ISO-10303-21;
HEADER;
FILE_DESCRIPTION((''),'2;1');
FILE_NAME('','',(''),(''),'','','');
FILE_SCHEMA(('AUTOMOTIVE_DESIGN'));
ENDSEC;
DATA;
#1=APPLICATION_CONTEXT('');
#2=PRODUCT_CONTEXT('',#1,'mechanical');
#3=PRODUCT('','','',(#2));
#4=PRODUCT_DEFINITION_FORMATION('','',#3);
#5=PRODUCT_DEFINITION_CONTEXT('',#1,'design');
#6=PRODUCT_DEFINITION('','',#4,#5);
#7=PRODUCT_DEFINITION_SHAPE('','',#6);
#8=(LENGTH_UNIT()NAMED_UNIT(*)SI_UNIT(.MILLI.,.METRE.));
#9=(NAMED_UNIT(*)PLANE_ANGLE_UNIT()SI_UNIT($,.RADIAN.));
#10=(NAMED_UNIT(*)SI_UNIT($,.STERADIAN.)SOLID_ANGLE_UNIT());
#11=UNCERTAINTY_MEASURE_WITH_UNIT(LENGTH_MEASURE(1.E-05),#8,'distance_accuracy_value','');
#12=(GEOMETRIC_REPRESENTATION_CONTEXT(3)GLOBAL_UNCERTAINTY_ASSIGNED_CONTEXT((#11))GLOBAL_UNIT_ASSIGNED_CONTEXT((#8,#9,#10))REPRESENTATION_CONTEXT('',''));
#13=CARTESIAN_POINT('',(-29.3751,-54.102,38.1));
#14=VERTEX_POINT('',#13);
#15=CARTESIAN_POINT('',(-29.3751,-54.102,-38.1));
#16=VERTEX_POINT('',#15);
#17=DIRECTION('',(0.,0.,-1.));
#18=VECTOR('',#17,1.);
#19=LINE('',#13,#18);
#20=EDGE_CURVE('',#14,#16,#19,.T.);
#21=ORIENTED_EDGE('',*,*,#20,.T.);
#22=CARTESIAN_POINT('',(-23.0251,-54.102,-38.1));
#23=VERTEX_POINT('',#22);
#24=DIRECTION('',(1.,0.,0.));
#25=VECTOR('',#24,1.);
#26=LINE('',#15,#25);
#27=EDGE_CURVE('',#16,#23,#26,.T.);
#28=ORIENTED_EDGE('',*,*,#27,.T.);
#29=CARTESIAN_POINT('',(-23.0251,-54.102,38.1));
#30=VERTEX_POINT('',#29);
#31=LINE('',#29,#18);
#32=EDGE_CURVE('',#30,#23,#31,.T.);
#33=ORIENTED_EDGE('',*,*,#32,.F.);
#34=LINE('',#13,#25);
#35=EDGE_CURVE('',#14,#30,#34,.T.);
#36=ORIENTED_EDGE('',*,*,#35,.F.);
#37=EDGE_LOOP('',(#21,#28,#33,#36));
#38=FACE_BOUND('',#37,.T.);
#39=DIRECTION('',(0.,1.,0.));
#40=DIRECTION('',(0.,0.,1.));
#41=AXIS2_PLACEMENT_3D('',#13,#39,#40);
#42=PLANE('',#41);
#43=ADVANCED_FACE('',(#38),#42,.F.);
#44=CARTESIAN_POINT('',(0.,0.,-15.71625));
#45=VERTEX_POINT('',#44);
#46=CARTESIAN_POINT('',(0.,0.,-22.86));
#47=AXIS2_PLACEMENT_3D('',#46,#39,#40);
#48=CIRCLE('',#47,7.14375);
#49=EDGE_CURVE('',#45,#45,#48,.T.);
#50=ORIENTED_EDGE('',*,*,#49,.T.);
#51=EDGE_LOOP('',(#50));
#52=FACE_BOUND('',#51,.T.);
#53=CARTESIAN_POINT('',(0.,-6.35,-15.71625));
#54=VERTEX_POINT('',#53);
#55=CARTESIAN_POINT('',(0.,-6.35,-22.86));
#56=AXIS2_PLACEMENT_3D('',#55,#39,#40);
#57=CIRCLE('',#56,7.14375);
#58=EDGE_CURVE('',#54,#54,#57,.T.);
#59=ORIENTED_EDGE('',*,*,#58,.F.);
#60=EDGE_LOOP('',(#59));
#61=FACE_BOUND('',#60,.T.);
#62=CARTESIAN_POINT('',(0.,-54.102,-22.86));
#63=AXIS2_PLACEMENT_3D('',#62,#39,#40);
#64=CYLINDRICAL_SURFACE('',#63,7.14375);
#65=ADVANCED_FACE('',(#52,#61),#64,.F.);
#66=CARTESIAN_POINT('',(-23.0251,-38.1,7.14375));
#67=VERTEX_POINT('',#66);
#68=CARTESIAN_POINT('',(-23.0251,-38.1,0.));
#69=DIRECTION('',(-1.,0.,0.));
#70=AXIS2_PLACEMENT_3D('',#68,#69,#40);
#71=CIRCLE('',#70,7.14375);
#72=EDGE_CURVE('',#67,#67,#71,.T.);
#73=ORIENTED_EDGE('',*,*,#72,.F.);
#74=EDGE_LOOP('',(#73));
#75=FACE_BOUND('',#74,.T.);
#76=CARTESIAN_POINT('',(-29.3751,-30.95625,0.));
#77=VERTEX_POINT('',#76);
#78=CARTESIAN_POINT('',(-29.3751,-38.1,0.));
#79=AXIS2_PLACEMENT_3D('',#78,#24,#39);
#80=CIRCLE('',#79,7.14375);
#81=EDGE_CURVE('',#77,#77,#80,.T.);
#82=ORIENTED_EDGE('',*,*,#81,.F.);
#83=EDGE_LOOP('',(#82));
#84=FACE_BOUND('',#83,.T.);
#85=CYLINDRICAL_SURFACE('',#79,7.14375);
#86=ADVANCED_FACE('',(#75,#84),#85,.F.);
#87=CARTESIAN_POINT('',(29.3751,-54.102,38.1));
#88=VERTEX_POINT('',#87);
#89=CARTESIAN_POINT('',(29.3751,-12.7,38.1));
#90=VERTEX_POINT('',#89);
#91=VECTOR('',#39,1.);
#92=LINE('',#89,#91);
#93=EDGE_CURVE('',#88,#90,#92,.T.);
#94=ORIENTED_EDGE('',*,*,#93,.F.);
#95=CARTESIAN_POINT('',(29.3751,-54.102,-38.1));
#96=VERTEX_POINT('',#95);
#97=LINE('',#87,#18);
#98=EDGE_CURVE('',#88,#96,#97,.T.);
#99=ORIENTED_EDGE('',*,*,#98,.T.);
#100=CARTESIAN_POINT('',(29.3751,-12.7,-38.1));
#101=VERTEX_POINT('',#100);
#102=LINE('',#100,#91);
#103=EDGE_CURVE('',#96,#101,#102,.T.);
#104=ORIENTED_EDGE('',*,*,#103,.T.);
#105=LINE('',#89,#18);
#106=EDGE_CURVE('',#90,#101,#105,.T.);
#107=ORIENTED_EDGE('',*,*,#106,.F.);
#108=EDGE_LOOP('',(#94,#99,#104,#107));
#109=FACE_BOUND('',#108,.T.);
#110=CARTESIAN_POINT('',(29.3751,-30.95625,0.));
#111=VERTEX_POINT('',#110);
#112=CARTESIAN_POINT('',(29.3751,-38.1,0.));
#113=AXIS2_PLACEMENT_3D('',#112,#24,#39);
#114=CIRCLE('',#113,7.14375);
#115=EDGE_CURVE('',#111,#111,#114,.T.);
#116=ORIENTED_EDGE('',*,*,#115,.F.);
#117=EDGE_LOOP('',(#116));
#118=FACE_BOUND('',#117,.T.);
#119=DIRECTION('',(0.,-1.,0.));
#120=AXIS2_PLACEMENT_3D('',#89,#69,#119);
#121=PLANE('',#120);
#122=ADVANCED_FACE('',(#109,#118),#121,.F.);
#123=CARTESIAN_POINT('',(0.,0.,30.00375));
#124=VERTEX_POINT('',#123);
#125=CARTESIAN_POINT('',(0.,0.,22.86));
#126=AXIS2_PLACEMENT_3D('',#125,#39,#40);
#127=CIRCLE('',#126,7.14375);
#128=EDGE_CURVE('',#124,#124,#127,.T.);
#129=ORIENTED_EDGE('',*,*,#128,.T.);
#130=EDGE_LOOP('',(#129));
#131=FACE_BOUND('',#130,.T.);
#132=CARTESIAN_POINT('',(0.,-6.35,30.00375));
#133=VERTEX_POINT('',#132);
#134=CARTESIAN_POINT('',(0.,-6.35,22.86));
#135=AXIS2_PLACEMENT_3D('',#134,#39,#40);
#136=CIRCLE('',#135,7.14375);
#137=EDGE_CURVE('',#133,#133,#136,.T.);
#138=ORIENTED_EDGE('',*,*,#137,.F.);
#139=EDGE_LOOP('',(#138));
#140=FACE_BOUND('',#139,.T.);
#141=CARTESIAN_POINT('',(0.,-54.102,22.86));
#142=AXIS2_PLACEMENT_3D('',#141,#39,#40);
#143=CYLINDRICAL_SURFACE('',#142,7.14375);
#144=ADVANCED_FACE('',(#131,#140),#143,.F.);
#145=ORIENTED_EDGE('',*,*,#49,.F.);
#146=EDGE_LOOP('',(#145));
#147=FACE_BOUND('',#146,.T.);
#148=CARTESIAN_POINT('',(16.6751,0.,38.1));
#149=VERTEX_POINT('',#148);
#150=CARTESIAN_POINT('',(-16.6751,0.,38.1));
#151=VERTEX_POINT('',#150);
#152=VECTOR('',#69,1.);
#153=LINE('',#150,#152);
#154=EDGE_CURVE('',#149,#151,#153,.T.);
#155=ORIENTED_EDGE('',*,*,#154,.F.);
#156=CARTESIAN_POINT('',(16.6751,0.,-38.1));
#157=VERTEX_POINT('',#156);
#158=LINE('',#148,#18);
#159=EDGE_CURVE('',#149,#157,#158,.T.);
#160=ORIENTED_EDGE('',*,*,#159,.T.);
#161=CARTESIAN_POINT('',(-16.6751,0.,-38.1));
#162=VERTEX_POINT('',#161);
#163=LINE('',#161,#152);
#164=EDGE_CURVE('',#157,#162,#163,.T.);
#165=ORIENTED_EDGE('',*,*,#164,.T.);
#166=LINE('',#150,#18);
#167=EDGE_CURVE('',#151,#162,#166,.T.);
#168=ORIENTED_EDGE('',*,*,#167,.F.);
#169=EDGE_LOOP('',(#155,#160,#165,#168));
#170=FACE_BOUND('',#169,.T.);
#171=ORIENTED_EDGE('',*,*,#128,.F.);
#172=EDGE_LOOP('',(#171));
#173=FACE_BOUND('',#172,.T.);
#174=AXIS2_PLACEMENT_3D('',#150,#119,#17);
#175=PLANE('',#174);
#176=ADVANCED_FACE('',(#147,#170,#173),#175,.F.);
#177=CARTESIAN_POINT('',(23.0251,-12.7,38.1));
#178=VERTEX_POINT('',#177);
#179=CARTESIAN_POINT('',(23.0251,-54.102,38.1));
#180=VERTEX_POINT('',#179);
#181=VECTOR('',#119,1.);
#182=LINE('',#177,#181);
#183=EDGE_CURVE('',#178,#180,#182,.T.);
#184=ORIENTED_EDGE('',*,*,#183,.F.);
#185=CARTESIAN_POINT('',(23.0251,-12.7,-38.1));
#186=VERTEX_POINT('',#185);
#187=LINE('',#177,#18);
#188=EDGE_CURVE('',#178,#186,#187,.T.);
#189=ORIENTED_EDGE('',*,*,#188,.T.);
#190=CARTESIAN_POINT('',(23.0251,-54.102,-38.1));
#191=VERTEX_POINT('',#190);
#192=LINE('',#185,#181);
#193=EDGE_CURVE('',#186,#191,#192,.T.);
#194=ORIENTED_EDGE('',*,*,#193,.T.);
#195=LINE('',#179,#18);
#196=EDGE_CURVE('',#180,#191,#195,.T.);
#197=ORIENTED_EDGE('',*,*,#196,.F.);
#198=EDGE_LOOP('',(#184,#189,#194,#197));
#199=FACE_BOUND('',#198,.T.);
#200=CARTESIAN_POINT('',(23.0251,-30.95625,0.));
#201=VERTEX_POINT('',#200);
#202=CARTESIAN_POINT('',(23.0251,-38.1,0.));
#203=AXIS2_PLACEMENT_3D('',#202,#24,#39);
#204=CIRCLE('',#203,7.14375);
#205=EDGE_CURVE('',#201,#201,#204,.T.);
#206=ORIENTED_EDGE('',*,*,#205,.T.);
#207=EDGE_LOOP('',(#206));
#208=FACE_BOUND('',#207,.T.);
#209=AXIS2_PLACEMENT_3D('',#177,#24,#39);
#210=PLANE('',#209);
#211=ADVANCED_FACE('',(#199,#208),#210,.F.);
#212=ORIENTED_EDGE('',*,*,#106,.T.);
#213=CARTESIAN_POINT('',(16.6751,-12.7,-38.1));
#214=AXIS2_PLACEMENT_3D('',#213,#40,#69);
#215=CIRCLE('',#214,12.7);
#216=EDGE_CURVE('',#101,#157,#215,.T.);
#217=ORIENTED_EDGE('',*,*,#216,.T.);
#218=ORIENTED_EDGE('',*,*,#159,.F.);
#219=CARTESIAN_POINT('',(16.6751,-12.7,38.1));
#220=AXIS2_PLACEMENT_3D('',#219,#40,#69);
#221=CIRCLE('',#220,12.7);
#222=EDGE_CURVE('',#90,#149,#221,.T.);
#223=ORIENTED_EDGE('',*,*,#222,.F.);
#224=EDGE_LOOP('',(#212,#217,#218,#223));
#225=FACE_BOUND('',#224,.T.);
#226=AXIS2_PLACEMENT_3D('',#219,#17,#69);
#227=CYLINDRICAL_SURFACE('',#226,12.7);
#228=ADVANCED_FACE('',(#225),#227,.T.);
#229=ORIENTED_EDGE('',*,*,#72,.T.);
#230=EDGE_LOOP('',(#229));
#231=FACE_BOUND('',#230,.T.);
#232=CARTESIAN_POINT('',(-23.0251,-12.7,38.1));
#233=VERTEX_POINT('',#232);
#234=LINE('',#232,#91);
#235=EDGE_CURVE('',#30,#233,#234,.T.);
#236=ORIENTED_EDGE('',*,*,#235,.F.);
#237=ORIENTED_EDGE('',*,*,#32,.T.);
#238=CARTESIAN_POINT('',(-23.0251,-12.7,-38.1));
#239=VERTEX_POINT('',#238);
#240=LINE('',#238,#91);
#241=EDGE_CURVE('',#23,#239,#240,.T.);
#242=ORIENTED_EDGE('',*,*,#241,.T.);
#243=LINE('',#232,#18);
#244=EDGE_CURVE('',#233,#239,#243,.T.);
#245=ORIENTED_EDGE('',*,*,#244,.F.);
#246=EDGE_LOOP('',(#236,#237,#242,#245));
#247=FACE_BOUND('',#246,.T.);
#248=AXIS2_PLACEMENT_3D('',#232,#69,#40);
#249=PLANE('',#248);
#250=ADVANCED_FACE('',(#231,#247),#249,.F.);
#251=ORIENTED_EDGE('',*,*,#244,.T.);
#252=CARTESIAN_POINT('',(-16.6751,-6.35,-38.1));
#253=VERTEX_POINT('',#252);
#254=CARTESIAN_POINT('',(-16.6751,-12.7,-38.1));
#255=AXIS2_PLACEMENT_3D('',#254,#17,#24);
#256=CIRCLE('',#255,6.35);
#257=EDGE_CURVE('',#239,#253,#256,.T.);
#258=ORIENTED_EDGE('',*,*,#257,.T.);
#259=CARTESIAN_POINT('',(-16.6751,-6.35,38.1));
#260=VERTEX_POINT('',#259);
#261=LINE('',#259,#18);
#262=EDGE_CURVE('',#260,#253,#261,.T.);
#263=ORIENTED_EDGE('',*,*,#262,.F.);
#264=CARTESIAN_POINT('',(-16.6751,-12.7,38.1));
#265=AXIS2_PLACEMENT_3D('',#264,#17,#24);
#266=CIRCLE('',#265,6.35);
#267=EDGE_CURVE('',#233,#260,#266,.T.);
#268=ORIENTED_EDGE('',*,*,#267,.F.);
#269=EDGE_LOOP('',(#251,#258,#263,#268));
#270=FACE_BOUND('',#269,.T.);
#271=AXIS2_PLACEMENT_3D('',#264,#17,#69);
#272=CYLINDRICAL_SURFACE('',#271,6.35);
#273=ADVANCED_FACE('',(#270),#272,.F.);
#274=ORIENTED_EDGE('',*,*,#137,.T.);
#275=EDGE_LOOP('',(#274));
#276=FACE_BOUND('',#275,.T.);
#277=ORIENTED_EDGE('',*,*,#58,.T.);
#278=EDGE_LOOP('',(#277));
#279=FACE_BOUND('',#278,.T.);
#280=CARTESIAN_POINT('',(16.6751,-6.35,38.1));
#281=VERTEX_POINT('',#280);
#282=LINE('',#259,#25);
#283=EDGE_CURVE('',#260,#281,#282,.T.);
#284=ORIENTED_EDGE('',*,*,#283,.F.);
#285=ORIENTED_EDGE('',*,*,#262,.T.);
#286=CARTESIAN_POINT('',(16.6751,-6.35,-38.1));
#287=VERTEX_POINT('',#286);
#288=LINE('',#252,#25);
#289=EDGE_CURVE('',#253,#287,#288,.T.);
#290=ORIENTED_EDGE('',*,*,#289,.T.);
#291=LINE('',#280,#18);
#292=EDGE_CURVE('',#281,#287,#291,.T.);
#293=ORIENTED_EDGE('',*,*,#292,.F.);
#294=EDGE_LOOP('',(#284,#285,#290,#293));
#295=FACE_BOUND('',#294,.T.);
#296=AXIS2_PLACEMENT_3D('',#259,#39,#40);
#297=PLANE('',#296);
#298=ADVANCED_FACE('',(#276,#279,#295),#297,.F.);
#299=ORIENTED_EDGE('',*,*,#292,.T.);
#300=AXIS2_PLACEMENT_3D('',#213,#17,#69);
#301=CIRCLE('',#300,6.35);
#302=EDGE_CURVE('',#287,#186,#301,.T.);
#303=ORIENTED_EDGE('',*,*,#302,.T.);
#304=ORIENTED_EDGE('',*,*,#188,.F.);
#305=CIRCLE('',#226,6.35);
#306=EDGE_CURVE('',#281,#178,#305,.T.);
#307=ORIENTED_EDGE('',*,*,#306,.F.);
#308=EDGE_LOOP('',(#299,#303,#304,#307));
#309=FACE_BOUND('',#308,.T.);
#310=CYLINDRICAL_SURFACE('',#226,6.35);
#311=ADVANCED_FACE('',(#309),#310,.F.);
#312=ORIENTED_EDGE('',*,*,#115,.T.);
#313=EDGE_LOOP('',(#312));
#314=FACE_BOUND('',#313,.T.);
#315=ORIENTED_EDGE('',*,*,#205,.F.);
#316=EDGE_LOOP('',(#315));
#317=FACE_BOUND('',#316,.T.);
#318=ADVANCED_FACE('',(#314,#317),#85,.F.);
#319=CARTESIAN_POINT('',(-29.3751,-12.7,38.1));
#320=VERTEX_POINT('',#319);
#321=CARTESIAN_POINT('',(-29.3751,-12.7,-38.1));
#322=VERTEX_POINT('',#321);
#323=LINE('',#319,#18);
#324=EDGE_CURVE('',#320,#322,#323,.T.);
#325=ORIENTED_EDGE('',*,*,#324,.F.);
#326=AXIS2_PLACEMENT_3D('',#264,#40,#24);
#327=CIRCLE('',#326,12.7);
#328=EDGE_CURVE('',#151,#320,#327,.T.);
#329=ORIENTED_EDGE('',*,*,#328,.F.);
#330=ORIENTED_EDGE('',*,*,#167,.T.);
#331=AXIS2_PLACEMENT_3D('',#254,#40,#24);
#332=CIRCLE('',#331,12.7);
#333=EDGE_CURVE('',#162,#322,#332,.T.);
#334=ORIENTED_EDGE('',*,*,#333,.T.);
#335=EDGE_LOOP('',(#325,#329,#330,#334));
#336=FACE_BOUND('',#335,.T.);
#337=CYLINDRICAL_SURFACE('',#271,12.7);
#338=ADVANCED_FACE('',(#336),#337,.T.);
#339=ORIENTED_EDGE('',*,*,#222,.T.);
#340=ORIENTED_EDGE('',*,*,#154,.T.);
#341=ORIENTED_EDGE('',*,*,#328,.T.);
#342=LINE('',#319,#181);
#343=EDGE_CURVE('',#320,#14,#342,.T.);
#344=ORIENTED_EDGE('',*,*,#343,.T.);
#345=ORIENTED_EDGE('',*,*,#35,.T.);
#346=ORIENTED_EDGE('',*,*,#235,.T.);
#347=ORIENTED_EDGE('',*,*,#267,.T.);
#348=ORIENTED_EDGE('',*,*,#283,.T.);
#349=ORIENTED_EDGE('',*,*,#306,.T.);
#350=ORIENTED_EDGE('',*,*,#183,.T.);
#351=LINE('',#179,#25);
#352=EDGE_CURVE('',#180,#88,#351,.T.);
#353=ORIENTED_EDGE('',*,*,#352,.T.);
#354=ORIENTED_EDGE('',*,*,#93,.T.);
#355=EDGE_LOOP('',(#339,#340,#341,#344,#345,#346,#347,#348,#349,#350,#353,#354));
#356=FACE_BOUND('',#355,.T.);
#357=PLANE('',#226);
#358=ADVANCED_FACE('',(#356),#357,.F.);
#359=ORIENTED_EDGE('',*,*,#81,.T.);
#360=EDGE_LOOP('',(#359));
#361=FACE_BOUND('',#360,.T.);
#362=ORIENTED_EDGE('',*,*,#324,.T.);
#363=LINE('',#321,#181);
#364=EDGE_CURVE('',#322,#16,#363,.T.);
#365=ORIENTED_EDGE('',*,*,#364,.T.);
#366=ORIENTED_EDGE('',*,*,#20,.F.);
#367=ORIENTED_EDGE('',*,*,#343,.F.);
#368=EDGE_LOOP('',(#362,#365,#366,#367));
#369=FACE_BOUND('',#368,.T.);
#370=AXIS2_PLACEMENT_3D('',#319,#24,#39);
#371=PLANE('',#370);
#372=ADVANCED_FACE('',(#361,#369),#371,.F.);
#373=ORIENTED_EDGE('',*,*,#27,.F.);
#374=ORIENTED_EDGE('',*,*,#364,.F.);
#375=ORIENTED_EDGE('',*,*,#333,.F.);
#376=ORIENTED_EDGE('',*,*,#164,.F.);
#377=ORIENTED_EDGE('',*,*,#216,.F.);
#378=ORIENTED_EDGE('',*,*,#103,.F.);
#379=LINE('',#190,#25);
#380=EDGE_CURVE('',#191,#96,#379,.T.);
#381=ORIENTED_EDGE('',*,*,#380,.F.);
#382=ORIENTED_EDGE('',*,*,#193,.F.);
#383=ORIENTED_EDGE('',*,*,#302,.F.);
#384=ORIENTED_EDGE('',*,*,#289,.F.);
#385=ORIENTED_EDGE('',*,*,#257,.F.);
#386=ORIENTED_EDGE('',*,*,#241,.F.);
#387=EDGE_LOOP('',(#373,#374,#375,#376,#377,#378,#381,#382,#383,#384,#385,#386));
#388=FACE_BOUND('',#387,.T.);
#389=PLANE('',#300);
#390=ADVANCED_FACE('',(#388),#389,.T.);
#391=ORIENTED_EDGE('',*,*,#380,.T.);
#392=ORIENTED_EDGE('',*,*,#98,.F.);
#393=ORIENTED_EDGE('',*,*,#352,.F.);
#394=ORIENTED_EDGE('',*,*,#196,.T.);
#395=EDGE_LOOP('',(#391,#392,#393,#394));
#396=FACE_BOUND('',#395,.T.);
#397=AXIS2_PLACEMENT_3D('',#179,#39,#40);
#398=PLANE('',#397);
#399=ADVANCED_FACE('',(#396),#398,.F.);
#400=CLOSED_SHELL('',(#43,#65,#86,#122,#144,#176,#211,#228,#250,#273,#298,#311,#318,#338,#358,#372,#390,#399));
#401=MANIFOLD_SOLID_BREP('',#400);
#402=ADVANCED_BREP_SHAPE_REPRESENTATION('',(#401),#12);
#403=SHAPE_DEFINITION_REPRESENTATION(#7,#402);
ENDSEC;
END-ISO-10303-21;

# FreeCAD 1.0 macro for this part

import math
import FreeCAD as App
import Part
import Sketcher

V = App.Vector
Q = App.Units.Quantity

doc = App.newDocument("Part")
body = doc.addObject("PartDesign::Body", "Body")

# Sketch on XY plane
sketch1 = body.newObject("Sketcher::SketchObject", "Sketch")
sketch1.AttachmentSupport = (doc.getObject("XY_Plane"), [""])
sketch1.MapMode = "FlatFace"
sketch1.addGeometry([
    Part.LineSegment(V(-23.0251, -54.102, 0), V(-23.0251, -12.7, 0)),  # 0
    Part.ArcOfCircle(Part.Circle(V(-16.6751, -12.7, 0), V(0, 0, 1), 6.35), math.radians(90), math.radians(180)),  # 1
    Part.LineSegment(V(-16.6751, -6.35, 0), V(16.6751, -6.35, 0)),  # 2
    Part.ArcOfCircle(Part.Circle(V(16.6751, -12.7, 0), V(0, 0, 1), 6.35), math.radians(0), math.radians(90)),  # 3
    Part.LineSegment(V(23.0251, -12.7, 0), V(23.0251, -54.102, 0)),  # 4
    Part.LineSegment(V(23.0251, -54.102, 0), V(29.3751, -54.102, 0)),  # 5
    Part.LineSegment(V(29.3751, -54.102, 0), V(29.3751, -12.7, 0)),  # 6
    Part.ArcOfCircle(Part.Circle(V(16.6751, -12.7, 0), V(0, 0, 1), 12.7), math.radians(0), math.radians(90)),  # 7
    Part.LineSegment(V(16.6751, 0, 0), V(-16.6751, 0, 0)),  # 8
    Part.ArcOfCircle(Part.Circle(V(-16.6751, -12.7, 0), V(0, 0, 1), 12.7), math.radians(90), math.radians(180)),  # 9
    Part.LineSegment(V(-29.3751, -12.7, 0), V(-29.3751, -54.102, 0)),  # 10
    Part.LineSegment(V(-29.3751, -54.102, 0), V(-23.0251, -54.102, 0)),  # 11
], False)
sketch1.addConstraint([
    Sketcher.Constraint("Tangent", 0, 2, 1, 2),
    Sketcher.Constraint("Tangent", 1, 1, 2, 1),
    Sketcher.Constraint("Tangent", 2, 2, 3, 2),
    Sketcher.Constraint("Tangent", 3, 1, 4, 1),
    Sketcher.Constraint("Coincident", 4, 2, 5, 1),
    Sketcher.Constraint("Coincident", 5, 2, 6, 1),
    Sketcher.Constraint("Tangent", 6, 2, 7, 1),
    Sketcher.Constraint("Tangent", 7, 2, 8, 1),
    Sketcher.Constraint("Tangent", 8, 2, 9, 1),
    Sketcher.Constraint("Tangent", 9, 2, 10, 1),
    Sketcher.Constraint("Coincident", 10, 2, 11, 1),
    Sketcher.Constraint("Coincident", 11, 2, 0, 1),
    Sketcher.Constraint("Vertical", 0),
    Sketcher.Constraint("Horizontal", 2),
    Sketcher.Constraint("Vertical", 4),
    Sketcher.Constraint("Horizontal", 5),
    Sketcher.Constraint("Vertical", 6),
    Sketcher.Constraint("Horizontal", 8),
    Sketcher.Constraint("Vertical", 10),
    Sketcher.Constraint("Horizontal", 11),
    Sketcher.Constraint("Coincident", 7, 3, 3, 3),
    Sketcher.Constraint("Coincident", 9, 3, 1, 3),
    Sketcher.Constraint("Equal", 1, 3),
    Sketcher.Constraint("Symmetric", 7, 2, 8, 2, -1, 1),
    Sketcher.Constraint("Horizontal", 5, 2, 10, 2),
    Sketcher.Constraint("Radius", 7, Q("0.5 in")),
    Sketcher.Constraint("Radius", 1, Q("0.25 in")),
    Sketcher.Constraint("DistanceY", 0, 1, 0, 2, Q("1.63 in")),
    Sketcher.Constraint("DistanceX", 2, 1, 2, 2, Q("1.313 in")),
])
pad1 = body.newObject("PartDesign::Pad", "Pad")
pad1.Profile = sketch1
pad1.Length = Q("3 in")
pad1.Midplane = True

# Sketch on YZ plane
sketch2 = body.newObject("Sketcher::SketchObject", "Sketch001")
sketch2.AttachmentSupport = (doc.getObject("YZ_Plane"), [""])
sketch2.MapMode = "FlatFace"
sketch2.AttachmentOffset = App.Placement(V(0, 0, 1.1565 * 25.4), App.Rotation())
sketch2.addGeometry(Part.Circle(V(-38.1, 0, 0), V(0, 0, 1), 7.14375), False)
sketch2.addConstraint([
    Sketcher.Constraint("PointOnObject", 0, 3, -1),
    Sketcher.Constraint("Diameter", 0, Q("0.5625 in")),
    Sketcher.Constraint("DistanceX", 0, 3, -1, 1, Q("1.5 in")),
])
pocket1 = body.newObject("PartDesign::Pocket", "Pocket")
pocket1.Profile = sketch2
pocket1.Type = "ThroughAll"

# Sketch on XZ plane
sketch3 = body.newObject("Sketcher::SketchObject", "Sketch002")
sketch3.AttachmentSupport = (doc.getObject("XZ_Plane"), [""])
sketch3.MapMode = "FlatFace"
sketch3.addGeometry([
    Part.Circle(V(0, -22.86, 0), V(0, 0, 1), 7.14375),
    Part.Circle(V(0, 22.86, 0), V(0, 0, 1), 7.14375),
], False)
sketch3.addConstraint([
    Sketcher.Constraint("Equal", 0, 1),
    Sketcher.Constraint("Symmetric", 0, 3, 1, 3, -1, 1),
    Sketcher.Constraint("PointOnObject", 0, 3, -2),
    Sketcher.Constraint("Diameter", 0, Q("0.5625 in")),
    Sketcher.Constraint("DistanceY", 0, 3, -1, 1, Q("0.9 in")),
])
pocket2 = body.newObject("PartDesign::Pocket", "Pocket001")
pocket2.Profile = sketch3
pocket2.Type = "ThroughAll"
pocket2.Reversed = True

doc.recompute()
